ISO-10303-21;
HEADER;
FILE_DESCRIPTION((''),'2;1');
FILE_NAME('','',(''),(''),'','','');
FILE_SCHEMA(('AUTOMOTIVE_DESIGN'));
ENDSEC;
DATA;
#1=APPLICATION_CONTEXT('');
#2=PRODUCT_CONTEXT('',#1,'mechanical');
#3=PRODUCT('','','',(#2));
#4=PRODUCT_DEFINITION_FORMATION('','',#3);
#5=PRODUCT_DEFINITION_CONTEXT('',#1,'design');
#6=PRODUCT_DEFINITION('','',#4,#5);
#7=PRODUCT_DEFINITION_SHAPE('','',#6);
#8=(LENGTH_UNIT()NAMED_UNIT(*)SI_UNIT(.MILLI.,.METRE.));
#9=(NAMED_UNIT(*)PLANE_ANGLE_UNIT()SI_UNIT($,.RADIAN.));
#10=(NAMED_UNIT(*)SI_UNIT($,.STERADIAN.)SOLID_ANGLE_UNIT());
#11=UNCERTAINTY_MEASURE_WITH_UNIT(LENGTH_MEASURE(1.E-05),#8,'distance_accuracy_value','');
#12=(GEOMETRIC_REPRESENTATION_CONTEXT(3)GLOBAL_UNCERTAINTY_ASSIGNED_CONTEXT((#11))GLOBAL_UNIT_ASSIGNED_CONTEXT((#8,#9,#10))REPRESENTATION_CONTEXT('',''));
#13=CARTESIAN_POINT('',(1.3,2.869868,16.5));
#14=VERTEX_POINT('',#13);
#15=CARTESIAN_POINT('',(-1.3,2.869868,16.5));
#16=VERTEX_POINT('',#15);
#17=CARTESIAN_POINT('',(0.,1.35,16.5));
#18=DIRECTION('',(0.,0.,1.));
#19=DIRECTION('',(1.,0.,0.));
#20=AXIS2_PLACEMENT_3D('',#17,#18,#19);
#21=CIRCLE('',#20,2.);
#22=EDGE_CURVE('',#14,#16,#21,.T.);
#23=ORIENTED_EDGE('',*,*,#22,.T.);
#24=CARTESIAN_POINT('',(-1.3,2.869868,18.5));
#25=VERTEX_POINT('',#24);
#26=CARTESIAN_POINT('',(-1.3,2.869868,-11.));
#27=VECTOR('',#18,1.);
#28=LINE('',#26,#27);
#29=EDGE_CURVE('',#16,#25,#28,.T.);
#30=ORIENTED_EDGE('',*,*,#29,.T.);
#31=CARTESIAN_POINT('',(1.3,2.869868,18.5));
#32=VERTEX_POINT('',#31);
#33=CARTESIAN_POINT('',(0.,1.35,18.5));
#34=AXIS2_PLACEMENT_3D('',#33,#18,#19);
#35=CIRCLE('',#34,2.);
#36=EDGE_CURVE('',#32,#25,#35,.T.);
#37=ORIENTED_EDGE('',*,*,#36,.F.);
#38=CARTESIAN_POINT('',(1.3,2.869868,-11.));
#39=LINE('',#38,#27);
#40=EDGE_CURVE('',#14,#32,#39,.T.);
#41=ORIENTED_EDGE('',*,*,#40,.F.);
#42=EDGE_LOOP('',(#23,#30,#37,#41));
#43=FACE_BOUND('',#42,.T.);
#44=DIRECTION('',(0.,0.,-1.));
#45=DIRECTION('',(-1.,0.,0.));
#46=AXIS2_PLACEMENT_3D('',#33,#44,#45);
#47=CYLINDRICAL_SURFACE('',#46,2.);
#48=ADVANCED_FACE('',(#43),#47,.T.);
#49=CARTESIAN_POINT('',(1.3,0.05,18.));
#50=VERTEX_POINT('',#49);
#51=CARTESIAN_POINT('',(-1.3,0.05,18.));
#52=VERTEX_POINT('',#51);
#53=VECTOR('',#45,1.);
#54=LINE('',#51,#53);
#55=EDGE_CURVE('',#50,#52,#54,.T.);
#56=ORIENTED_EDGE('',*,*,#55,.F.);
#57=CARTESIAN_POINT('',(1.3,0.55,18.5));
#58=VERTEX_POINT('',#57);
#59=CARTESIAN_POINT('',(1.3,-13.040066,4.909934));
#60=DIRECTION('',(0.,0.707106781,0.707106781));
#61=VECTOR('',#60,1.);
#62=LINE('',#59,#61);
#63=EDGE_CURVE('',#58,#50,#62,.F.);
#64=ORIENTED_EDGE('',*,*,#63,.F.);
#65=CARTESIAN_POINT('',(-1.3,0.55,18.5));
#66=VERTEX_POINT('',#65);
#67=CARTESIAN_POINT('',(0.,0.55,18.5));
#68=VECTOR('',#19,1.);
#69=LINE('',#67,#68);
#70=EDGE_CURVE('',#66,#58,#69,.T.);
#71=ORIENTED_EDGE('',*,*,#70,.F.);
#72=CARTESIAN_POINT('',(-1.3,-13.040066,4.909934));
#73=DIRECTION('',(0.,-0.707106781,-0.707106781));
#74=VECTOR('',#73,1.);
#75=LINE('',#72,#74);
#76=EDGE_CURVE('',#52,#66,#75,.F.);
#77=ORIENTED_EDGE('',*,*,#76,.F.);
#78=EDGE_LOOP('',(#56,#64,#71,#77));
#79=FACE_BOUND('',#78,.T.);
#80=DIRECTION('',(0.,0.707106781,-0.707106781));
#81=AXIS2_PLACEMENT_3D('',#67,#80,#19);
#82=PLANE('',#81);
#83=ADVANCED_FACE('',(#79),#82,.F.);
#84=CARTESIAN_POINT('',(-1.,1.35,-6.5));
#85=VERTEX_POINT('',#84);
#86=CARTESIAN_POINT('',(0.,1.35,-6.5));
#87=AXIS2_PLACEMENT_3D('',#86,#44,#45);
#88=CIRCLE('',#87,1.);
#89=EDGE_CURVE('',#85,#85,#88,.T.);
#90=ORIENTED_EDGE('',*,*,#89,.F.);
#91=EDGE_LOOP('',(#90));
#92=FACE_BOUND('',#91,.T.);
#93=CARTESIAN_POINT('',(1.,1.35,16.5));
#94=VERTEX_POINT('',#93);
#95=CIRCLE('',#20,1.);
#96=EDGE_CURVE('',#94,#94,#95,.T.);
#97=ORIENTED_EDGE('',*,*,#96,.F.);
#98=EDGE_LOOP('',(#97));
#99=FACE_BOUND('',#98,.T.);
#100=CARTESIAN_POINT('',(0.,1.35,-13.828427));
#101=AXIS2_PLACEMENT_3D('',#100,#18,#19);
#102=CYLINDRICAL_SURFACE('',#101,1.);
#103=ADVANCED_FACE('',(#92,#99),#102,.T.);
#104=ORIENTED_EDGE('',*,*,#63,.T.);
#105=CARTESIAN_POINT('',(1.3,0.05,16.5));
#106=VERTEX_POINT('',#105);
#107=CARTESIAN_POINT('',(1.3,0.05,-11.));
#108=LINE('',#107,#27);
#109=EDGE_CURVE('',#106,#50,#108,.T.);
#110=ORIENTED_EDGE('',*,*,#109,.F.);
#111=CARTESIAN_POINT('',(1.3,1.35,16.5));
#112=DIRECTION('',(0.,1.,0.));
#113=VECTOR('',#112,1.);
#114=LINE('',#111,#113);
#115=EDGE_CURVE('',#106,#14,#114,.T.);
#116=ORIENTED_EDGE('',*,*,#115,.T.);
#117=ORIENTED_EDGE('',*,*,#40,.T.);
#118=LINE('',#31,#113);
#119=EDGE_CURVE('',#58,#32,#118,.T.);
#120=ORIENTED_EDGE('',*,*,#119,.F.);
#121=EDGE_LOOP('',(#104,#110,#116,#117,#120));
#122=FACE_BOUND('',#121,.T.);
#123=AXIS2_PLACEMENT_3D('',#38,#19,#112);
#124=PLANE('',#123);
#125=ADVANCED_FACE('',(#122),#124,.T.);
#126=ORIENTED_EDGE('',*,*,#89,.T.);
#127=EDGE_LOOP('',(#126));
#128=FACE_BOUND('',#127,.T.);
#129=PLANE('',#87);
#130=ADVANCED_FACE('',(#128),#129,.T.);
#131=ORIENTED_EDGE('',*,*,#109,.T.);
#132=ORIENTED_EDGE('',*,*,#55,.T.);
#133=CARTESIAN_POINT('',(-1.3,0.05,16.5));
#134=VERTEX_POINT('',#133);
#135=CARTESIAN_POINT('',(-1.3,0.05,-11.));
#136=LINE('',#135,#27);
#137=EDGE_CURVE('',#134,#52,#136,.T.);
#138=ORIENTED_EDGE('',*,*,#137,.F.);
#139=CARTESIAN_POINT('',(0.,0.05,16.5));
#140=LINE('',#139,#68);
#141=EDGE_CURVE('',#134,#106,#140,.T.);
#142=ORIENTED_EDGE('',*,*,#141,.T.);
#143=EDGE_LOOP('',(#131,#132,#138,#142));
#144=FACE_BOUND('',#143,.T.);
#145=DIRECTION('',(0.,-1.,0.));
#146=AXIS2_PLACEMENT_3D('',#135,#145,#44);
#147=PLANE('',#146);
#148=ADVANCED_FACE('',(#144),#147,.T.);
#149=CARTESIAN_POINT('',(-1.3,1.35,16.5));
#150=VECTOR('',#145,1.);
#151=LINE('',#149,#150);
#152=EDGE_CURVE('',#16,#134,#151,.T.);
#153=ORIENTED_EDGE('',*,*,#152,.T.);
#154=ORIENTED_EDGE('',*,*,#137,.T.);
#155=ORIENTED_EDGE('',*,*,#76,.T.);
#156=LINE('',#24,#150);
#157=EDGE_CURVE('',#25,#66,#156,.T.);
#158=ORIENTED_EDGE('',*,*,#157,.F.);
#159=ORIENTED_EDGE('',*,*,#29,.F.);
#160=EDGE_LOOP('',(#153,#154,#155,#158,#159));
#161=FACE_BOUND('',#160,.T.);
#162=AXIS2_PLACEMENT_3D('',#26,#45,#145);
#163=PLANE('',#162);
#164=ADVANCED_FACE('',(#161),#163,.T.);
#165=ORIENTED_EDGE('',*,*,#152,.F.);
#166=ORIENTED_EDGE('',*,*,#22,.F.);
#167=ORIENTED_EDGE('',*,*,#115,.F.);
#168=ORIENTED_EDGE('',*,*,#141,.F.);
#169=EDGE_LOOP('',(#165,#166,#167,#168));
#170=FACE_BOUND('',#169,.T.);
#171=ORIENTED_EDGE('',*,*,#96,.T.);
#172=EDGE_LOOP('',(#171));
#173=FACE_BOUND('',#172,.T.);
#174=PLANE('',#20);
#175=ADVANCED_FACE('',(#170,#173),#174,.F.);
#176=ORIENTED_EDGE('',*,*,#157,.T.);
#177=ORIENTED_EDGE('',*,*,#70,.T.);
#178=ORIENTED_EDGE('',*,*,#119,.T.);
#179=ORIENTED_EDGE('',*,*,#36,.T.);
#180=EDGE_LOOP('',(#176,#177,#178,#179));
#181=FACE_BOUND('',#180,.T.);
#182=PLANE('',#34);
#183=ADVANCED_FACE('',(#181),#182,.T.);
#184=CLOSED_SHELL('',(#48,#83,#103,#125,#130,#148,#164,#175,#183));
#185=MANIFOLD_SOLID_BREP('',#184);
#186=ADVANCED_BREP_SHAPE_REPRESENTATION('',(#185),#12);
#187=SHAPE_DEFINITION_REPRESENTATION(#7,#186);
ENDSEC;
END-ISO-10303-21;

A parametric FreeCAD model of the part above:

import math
import FreeCAD as App
import Part
import Sketcher
Q = App.Units.Quantity


def edges_at(feature, points):
    """Names of the edges that pass closest to the given points."""
    edges = feature.Shape.Edges
    near = lambda p: min(range(len(edges)), key=lambda i: edges[i].distToShape(Part.Vertex(*p))[0])
    return sorted({f"Edge{near(p) + 1}" for p in points})


def add_polygon(sketch, points):
    """Adds a closed chain of lines whose ends are joined by coincident constraints."""
    first, n = sketch.GeometryCount, len(points)
    for a, b in zip(points, points[1:] + points[:1]):
        sketch.addGeometry(Part.LineSegment(App.Vector(*a, 0), App.Vector(*b, 0)), False)
    for i in range(n):
        sketch.addConstraint(Sketcher.Constraint("Coincident", first + i, 2, first + (i + 1) % n, 1))

doc = App.newDocument("Part")
body = doc.addObject("PartDesign::Body", "Body")

# Sketch on XY plane
sketch1 = body.newObject("Sketcher::SketchObject", "Sketch")
sketch1.AttachmentSupport = (doc.getObject("XY_Plane"), [""])
sketch1.MapMode = "FlatFace"
sketch1.addGeometry(Part.Circle(App.Vector(0, 1.35, 0), App.Vector(0, 0, 1), 1), False)
sketch1.addConstraint([
    Sketcher.Constraint("PointOnObject", 0, 3, -2),
    Sketcher.Constraint("Diameter", 0, Q("2 mm")),
    Sketcher.Constraint("DistanceY", -1, 1, 0, 3, Q("1.35 mm")),
])
pad1 = body.newObject("PartDesign::Pad", "Pad")
pad1.Profile = sketch1
pad1.Type = "TwoLengths"
pad1.Length = 16.5
pad1.Length2 = 11

# Sketch on XY plane
sketch2 = body.newObject("Sketcher::SketchObject", "Sketch001")
sketch2.AttachmentSupport = (doc.getObject("XY_Plane"), [""])
sketch2.MapMode = "FlatFace"
sketch2.AttachmentOffset = App.Placement(App.Vector(0, 0, 16.5), App.Rotation())
sketch2.addGeometry(Part.Circle(App.Vector(0, 1.35, 0), App.Vector(0, 0, 1), 2), False)
sketch2.addConstraint([
    Sketcher.Constraint("PointOnObject", 0, 3, -2),
    Sketcher.Constraint("Diameter", 0, Q("4 mm")),
    Sketcher.Constraint("DistanceY", -1, 1, 0, 3, Q("1.35 mm")),
])
pad2 = body.newObject("PartDesign::Pad", "Pad001")
pad2.Profile = sketch2
pad2.Length = 2

# Sketch on XY plane
sketch3 = body.newObject("Sketcher::SketchObject", "Sketch002")
sketch3.AttachmentSupport = (doc.getObject("XY_Plane"), [""])
sketch3.MapMode = "FlatFace"
sketch3.AttachmentOffset = App.Placement(App.Vector(0, 0, 18.5), App.Rotation())
add_polygon(sketch3, [(-6.004, 7.354), (-6.004, -4.654), (6.004, -4.654), (6.004, 7.354)])  # lines 0-3
sketch3.addGeometry(Part.LineSegment(App.Vector(-1.3, 0.05, 0), App.Vector(-1.3, 2.869868, 0)), False)  # 4
sketch3.addGeometry(Part.ArcOfCircle(Part.Circle(App.Vector(0, 1.35, 0), App.Vector(0, 0, 1), 2), math.radians(49.458398), math.radians(130.541602)), False)  # 5
sketch3.addGeometry(Part.LineSegment(App.Vector(1.3, 2.869868, 0), App.Vector(1.3, 0.05, 0)), False)  # 6
sketch3.addGeometry(Part.LineSegment(App.Vector(1.3, 0.05, 0), App.Vector(-1.3, 0.05, 0)), False)  # 7
sketch3.addConstraint([
    Sketcher.Constraint("Coincident", 4, 2, 5, 2),
    Sketcher.Constraint("Coincident", 5, 1, 6, 1),
    Sketcher.Constraint("Coincident", 6, 2, 7, 1),
    Sketcher.Constraint("Coincident", 7, 2, 4, 1),
    Sketcher.Constraint("Vertical", 0),
    Sketcher.Constraint("Horizontal", 1),
    Sketcher.Constraint("Vertical", 2),
    Sketcher.Constraint("Horizontal", 3),
    Sketcher.Constraint("Vertical", 4),
    Sketcher.Constraint("Vertical", 6),
    Sketcher.Constraint("Horizontal", 7),
    Sketcher.Constraint("Symmetric", 4, 2, 5, 1, -2),
    Sketcher.Constraint("Equal", 3, 0),
    Sketcher.Constraint("Radius", 5, Q("2 mm")),
    Sketcher.Constraint("DistanceX", 7, 2, 7, 1, Q("2.6 mm")),
    Sketcher.Constraint("DistanceY", 6, 2, 5, 3, Q("1.3 mm")),
    Sketcher.Constraint("DistanceX", 1, 1, 1, 2, Q("12.008 mm")),
    Sketcher.Constraint("DistanceY", -1, 1, 5, 3, Q("1.35 mm")),
    Sketcher.Constraint("DistanceX", 0, 2, -1, 1, Q("6.004 mm")),
    Sketcher.Constraint("DistanceY", 0, 2, -1, 1, Q("4.654 mm")),
])
pocket1 = body.newObject("PartDesign::Pocket", "Pocket")
pocket1.Profile = sketch3
pocket1.Type = "ThroughAll"
doc.recompute()

chamfer = body.newObject("PartDesign::Chamfer", "Chamfer")
chamfer.Base = (pocket1, edges_at(pocket1, [(0, 0.05, 18.5)]))
chamfer.Size = 0.5

# Sketch on XY plane
sketch4 = body.newObject("Sketcher::SketchObject", "Sketch003")
sketch4.AttachmentSupport = (doc.getObject("XY_Plane"), [""])
sketch4.MapMode = "FlatFace"
sketch4.AttachmentOffset = App.Placement(App.Vector(0, 0, -11), App.Rotation())
sketch4.addGeometry(Part.Circle(App.Vector(0, 1.35, 0), App.Vector(0, 0, 1), 1), False)
sketch4.addConstraint([
    Sketcher.Constraint("PointOnObject", 0, 3, -2),
    Sketcher.Constraint("Diameter", 0, Q("2 mm")),
    Sketcher.Constraint("DistanceY", -1, 1, 0, 3, Q("1.35 mm")),
])
pocket2 = body.newObject("PartDesign::Pocket", "Pocket001")
pocket2.Profile = sketch4
pocket2.Length = 4.5
pocket2.Reversed = True

doc.recompute()
